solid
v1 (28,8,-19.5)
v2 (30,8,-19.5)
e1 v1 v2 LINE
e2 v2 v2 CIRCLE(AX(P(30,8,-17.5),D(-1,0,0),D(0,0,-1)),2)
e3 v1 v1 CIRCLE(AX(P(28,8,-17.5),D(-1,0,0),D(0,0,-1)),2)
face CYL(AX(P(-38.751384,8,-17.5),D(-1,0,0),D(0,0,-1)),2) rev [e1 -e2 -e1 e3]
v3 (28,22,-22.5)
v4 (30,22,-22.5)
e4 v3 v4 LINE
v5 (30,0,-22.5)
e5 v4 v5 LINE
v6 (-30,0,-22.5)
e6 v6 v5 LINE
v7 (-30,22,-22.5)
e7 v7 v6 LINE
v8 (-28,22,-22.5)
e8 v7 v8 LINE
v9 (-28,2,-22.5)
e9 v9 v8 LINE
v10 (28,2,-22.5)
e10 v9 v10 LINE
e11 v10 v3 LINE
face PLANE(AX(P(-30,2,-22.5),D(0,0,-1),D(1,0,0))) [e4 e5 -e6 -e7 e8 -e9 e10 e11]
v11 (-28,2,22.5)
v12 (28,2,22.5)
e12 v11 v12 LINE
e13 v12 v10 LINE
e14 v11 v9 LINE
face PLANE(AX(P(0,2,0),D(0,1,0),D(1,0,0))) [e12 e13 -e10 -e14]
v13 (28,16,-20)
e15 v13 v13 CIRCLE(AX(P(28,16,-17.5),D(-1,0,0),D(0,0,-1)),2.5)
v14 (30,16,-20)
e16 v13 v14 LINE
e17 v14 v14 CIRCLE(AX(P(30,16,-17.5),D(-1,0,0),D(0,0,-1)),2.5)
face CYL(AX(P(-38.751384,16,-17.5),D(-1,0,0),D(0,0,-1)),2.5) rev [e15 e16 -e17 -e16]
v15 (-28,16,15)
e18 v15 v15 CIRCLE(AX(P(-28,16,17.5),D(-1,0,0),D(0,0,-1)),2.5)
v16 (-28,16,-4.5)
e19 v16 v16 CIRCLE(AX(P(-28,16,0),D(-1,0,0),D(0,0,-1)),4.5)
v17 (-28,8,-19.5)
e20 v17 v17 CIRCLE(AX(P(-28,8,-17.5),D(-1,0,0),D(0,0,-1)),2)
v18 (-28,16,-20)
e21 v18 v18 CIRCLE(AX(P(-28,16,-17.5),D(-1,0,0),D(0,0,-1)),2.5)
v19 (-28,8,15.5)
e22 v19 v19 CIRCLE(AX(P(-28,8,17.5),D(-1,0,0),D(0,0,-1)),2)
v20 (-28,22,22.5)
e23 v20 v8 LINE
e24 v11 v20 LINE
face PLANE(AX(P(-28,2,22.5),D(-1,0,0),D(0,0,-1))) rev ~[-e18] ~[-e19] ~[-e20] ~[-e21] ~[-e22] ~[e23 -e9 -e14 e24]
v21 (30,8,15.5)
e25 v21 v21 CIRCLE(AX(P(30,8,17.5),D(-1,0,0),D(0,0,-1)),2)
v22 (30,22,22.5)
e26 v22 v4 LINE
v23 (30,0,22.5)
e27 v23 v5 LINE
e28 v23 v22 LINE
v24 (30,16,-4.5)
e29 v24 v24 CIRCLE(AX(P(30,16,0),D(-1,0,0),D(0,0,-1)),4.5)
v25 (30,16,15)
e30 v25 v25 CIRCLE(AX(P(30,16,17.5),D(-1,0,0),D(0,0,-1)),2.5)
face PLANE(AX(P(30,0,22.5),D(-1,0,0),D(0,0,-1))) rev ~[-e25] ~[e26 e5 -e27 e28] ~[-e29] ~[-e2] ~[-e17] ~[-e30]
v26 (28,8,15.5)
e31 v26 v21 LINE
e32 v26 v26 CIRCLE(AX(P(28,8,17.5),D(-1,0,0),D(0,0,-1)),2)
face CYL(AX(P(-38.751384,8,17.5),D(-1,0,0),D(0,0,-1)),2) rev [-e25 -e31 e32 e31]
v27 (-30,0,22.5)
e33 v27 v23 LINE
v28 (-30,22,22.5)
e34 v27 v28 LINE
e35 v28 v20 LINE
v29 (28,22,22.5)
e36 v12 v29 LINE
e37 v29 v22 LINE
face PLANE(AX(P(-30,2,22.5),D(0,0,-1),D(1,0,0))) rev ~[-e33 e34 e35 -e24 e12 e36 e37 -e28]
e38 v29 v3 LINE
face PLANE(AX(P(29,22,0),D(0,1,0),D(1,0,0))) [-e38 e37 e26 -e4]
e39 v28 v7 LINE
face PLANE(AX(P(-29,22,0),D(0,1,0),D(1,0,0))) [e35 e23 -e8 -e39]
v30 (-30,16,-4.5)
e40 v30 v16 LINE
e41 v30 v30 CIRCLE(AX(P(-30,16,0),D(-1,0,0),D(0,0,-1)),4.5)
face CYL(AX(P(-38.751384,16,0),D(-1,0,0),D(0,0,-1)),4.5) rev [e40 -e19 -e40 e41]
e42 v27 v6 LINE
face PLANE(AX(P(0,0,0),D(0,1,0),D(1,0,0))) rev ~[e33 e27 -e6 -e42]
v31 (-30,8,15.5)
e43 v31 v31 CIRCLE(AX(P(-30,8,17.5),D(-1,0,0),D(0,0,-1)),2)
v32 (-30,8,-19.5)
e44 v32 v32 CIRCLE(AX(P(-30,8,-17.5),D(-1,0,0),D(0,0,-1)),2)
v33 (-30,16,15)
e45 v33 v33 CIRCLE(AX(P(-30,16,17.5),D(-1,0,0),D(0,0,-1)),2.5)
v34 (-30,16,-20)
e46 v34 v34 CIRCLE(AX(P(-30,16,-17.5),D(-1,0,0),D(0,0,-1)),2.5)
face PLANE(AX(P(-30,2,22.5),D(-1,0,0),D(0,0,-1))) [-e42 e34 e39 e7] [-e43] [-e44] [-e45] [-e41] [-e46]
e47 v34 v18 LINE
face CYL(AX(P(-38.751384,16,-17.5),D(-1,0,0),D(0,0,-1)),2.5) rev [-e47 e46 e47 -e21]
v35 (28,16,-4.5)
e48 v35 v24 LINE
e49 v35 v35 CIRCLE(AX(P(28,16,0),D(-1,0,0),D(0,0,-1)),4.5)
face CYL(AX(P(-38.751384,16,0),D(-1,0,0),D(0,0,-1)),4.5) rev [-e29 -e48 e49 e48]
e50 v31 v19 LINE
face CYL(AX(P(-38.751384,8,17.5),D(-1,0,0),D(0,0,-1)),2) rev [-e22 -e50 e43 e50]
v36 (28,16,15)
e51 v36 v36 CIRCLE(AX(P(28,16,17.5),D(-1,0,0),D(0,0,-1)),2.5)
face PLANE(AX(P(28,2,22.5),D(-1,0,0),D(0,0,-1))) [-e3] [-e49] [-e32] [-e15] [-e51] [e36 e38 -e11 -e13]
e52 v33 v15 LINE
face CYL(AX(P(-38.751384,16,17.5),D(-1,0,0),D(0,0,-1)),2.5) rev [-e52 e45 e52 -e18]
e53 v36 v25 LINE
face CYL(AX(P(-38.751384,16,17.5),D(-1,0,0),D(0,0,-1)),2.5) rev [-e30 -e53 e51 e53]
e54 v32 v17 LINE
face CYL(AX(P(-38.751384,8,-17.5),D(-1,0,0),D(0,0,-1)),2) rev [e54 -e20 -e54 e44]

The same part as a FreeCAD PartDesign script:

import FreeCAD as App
import Part
import Sketcher
Q = App.Units.Quantity

doc = App.newDocument("Part")
body = doc.addObject("PartDesign::Body", "Body")

# Sketch on XZ plane
sketch1 = body.newObject("Sketcher::SketchObject", "Sketch")
sketch1.AttachmentSupport = (doc.getObject("XZ_Plane"), [""])
sketch1.MapMode = "FlatFace"
sketch1.addGeometry([
    Part.LineSegment(App.Vector(-30, -22, 0), App.Vector(-30, 22, 0)),
    Part.LineSegment(App.Vector(-30, 22, 0), App.Vector(30, 22, 0)),
    Part.LineSegment(App.Vector(30, 22, 0), App.Vector(30, -22, 0)),
    Part.LineSegment(App.Vector(30, -22, 0), App.Vector(-30, -22, 0)),
], False)
sketch1.addConstraint([
    Sketcher.Constraint("Coincident", 0, 2, 1, 1),
    Sketcher.Constraint("Coincident", 1, 2, 2, 1),
    Sketcher.Constraint("Coincident", 2, 2, 3, 1),
    Sketcher.Constraint("Coincident", 3, 2, 0, 1),
    Sketcher.Constraint("Vertical", 0),
    Sketcher.Constraint("Horizontal", 1),
    Sketcher.Constraint("Vertical", 2),
    Sketcher.Constraint("Horizontal", 3),
    Sketcher.Constraint("Symmetric", 0, 2, 2, 2, -1, 1),
    Sketcher.Constraint("DistanceX", 1, 1, 1, 2, Q("60 mm")),
    Sketcher.Constraint("DistanceY", 0, 1, 0, 2, Q("45 mm")),
])
pad1 = body.newObject("PartDesign::Pad", "Pad")
pad1.Profile = sketch1
pad1.Length = 2
pad1.Reversed = True

# Sketch on XZ plane
sketch2 = body.newObject("Sketcher::SketchObject", "Sketch001")
sketch2.AttachmentSupport = (doc.getObject("XZ_Plane"), [""])
sketch2.MapMode = "FlatFace"
sketch2.AttachmentOffset = App.Placement(App.Vector(0, 0, -2), App.Rotation())
sketch2.addGeometry([
    Part.LineSegment(App.Vector(-30, -22.5, 0), App.Vector(-30, 22.5, 0)),  # 0
    Part.LineSegment(App.Vector(-30, 22.5, 0), App.Vector(-28, 22.5, 0)),  # 1
    Part.LineSegment(App.Vector(-28, 22.5, 0), App.Vector(-28, -22.5, 0)),  # 2
    Part.LineSegment(App.Vector(-28, -22.5, 0), App.Vector(-30, -22.5, 0)),  # 3
    Part.LineSegment(App.Vector(28, -22.5, 0), App.Vector(28, 22.5, 0)),  # 4
    Part.LineSegment(App.Vector(28, 22.5, 0), App.Vector(30, 22.5, 0)),  # 5
    Part.LineSegment(App.Vector(30, 22.5, 0), App.Vector(30, -22.5, 0)),  # 6
    Part.LineSegment(App.Vector(30, -22.5, 0), App.Vector(28, -22.5, 0)),  # 7
], False)
sketch2.addConstraint([
    Sketcher.Constraint("Coincident", 0, 2, 1, 1),
    Sketcher.Constraint("Coincident", 1, 2, 2, 1),
    Sketcher.Constraint("Coincident", 2, 2, 3, 1),
    Sketcher.Constraint("Coincident", 3, 2, 0, 1),
    Sketcher.Constraint("Coincident", 4, 2, 5, 1),
    Sketcher.Constraint("Coincident", 5, 2, 6, 1),
    Sketcher.Constraint("Coincident", 6, 2, 7, 1),
    Sketcher.Constraint("Coincident", 7, 2, 4, 1),
    Sketcher.Constraint("Vertical", 0),
    Sketcher.Constraint("Horizontal", 1),
    Sketcher.Constraint("Vertical", 2),
    Sketcher.Constraint("Horizontal", 3),
    Sketcher.Constraint("Vertical", 4),
    Sketcher.Constraint("Horizontal", 5),
    Sketcher.Constraint("Vertical", 6),
    Sketcher.Constraint("Horizontal", 7),
    Sketcher.Constraint("Symmetric", 2, 2, 4, 2, -1, 1),
    Sketcher.Constraint("Symmetric", 0, 2, 6, 2, -1, 1),
    Sketcher.Constraint("Horizontal", 1, 2, 4, 2),
    Sketcher.Constraint("DistanceX", 1, 1, 1, 2, Q("2 mm")),
    Sketcher.Constraint("DistanceY", 0, 1, 0, 2, Q("45 mm")),
    Sketcher.Constraint("DistanceX", 0, 2, -1, 1, Q("30 mm")),
])
pad2 = body.newObject("PartDesign::Pad", "Pad001")
pad2.Profile = sketch2
pad2.Length = 20
pad2.Reversed = True

# Sketch on YZ plane
sketch3 = body.newObject("Sketcher::SketchObject", "Sketch002")
sketch3.AttachmentSupport = (doc.getObject("YZ_Plane"), [""])
sketch3.MapMode = "FlatFace"
sketch3.AttachmentOffset = App.Placement(App.Vector(0, 0, 30), App.Rotation())
sketch3.addGeometry([
    Part.Circle(App.Vector(8, 17.5, 0), App.Vector(0, 0, 1), 2),  # 0
    Part.Circle(App.Vector(8, -17.5, 0), App.Vector(0, 0, 1), 2),  # 1
    Part.Circle(App.Vector(16, 0, 0), App.Vector(0, 0, 1), 4.5),  # 2
    Part.Circle(App.Vector(16, -17.5, 0), App.Vector(0, 0, 1), 2.5),  # 3
    Part.Circle(App.Vector(16, 17.5, 0), App.Vector(0, 0, 1), 2.5),  # 4
], False)
sketch3.addConstraint([
    Sketcher.Constraint("Equal", 0, 1),
    Sketcher.Constraint("Equal", 3, 4),
    Sketcher.Constraint("Symmetric", 0, 3, 1, 3, -1),
    Sketcher.Constraint("Symmetric", 3, 3, 4, 3, -1),
    Sketcher.Constraint("PointOnObject", 2, 3, -1),
    Sketcher.Constraint("Horizontal", 1, 3, 3, 3),
    Sketcher.Constraint("Vertical", 2, 3, 3, 3),
    Sketcher.Constraint("Diameter", 0, Q("4 mm")),
    Sketcher.Constraint("Diameter", 2, Q("9 mm")),
    Sketcher.Constraint("Diameter", 3, Q("5 mm")),
    Sketcher.Constraint("DistanceX", -1, 1, 0, 3, Q("8 mm")),
    Sketcher.Constraint("DistanceX", -1, 1, 2, 3, Q("16 mm")),
    Sketcher.Constraint("DistanceY", 1, 3, 0, 3, Q("35 mm")),
])
pocket1 = body.newObject("PartDesign::Pocket", "Pocket")
pocket1.Profile = sketch3
pocket1.Type = "ThroughAll"
pocket1.Midplane = True

doc.recompute()
